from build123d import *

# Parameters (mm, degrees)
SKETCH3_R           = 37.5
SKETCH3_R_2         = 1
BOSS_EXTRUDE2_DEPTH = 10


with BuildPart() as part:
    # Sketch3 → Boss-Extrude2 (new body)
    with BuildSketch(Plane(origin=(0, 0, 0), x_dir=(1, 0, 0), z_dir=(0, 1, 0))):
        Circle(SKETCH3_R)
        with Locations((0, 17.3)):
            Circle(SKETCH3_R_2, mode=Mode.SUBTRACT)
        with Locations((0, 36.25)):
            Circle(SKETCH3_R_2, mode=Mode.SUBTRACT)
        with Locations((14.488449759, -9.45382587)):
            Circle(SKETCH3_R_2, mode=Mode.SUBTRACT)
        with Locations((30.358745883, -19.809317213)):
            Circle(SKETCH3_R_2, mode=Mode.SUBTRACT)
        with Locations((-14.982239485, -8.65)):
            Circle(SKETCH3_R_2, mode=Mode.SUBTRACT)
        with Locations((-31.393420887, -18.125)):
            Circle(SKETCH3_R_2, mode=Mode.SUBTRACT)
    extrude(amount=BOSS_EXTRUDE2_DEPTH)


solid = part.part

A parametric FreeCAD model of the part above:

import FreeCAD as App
import Part
import Sketcher

doc = App.newDocument("Part")
body = doc.addObject("PartDesign::Body", "Body")

sketch1 = body.newObject("Sketcher::SketchObject", "Sketch")
sketch1.AttachmentSupport = (doc.getObject("XZ_Plane"), [""])
sketch1.MapMode = "FlatFace"
sketch1.addGeometry([
    Part.Circle(App.Vector(0, 0, 0), App.Vector(0, 0, 1), 37.5),
    Part.Circle(App.Vector(-31.393421, 18.125, 0), App.Vector(0, 0, 1), 1),
    Part.Circle(App.Vector(-14.982239, 8.65, 0), App.Vector(0, 0, 1), 1),
    Part.Circle(App.Vector(14.48845, 9.453826, 0), App.Vector(0, 0, 1), 1),
    Part.Circle(App.Vector(30.358746, 19.809317, 0), App.Vector(0, 0, 1), 1),
    Part.Circle(App.Vector(0, -17.3, 0), App.Vector(0, 0, 1), 1),
    Part.Circle(App.Vector(0, -36.25, 0), App.Vector(0, 0, 1), 1),
], False)
sketch1.addConstraint([
    Sketcher.Constraint("Coincident", 0, 3, -1, 1),
    Sketcher.Constraint("Equal", 1, 2),
    Sketcher.Constraint("Equal", 2, 3),
    Sketcher.Constraint("Equal", 3, 4),
    Sketcher.Constraint("Equal", 4, 5),
    Sketcher.Constraint("Equal", 5, 6),
    Sketcher.Constraint("PointOnObject", 5, 3, -2),
    Sketcher.Constraint("PointOnObject", 6, 3, -2),
    Sketcher.Constraint("Diameter", 0, 75.0),
    Sketcher.Constraint("Diameter", 1, 2.0),
    Sketcher.Constraint("DistanceY", 5, 3, -1, 1, 17.3),
    Sketcher.Constraint("DistanceY", 6, 3, 2, 3, 44.9),
    Sketcher.Constraint("DistanceY", -1, 1, 2, 3, 8.65),
    Sketcher.Constraint("DistanceY", -1, 1, 1, 3, 18.125),
    Sketcher.Constraint("DistanceX", 1, 3, -1, 1, 31.393421),
    Sketcher.Constraint("DistanceX", 2, 3, -1, 1, 14.982239),
    Sketcher.Constraint("DistanceX", -1, 1, 3, 3, 14.48845),
    Sketcher.Constraint("DistanceY", 3, 3, 4, 3, 10.355491),
    Sketcher.Constraint("DistanceY", -1, 1, 3, 3, 9.453826),
    Sketcher.Constraint("DistanceX", -1, 1, 4, 3, 30.358746),
])
pad1 = body.newObject("PartDesign::Pad", "Pad")
pad1.Profile = sketch1
pad1.Length = 10
pad1.Reversed = True

doc.recompute()
